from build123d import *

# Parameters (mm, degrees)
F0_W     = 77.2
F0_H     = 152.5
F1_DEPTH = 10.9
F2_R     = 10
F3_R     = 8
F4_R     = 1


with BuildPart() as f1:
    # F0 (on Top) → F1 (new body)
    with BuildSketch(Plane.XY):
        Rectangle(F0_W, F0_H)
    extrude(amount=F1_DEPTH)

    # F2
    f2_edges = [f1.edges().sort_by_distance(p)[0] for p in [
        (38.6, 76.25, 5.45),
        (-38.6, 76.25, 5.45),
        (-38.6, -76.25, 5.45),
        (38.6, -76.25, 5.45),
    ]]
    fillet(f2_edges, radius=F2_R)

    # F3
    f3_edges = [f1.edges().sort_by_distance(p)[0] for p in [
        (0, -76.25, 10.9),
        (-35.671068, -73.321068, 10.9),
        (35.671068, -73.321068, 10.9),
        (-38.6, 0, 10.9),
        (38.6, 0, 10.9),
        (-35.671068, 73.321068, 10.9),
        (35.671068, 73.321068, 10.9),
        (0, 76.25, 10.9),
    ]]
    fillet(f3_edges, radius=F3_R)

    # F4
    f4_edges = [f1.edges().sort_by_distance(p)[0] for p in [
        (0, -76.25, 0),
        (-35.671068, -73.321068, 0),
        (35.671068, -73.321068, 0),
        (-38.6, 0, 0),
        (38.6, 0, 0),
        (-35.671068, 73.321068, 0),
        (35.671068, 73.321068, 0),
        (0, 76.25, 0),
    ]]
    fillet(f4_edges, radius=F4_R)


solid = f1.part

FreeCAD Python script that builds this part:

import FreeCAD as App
import Part
import Sketcher
from FreeCAD import Vector
Q = App.Units.Quantity


def edges_at(feature, points):
    """Names of the edges that pass closest to the given points."""
    edges = feature.Shape.Edges
    near = lambda p: min(range(len(edges)), key=lambda i: edges[i].distToShape(Part.Vertex(*p))[0])
    return sorted({f"Edge{near(p) + 1}" for p in points})


def add_polygon(sketch, points):
    """Adds a closed chain of lines whose ends are joined by coincident constraints."""
    first, n = sketch.GeometryCount, len(points)
    for a, b in zip(points, points[1:] + points[:1]):
        sketch.addGeometry(Part.LineSegment(App.Vector(*a, 0), App.Vector(*b, 0)), False)
    for i in range(n):
        sketch.addConstraint(Sketcher.Constraint("Coincident", first + i, 2, first + (i + 1) % n, 1))

doc = App.newDocument("Part")
body = doc.addObject("PartDesign::Body", "Body")

sketch1 = doc.addObject("Sketcher::SketchObject", "Sketch")
body.addObject(sketch1)
sketch1.AttachmentSupport = (doc.XY_Plane, [""])
sketch1.MapMode = "FlatFace"
add_polygon(sketch1, [(-39, 76), (-39, -76), (39, -76), (39, 76)])
sketch1.addConstraint(Sketcher.Constraint("Vertical", 0))
sketch1.addConstraint(Sketcher.Constraint("Horizontal", 1))
sketch1.addConstraint(Sketcher.Constraint("Vertical", 2))
sketch1.addConstraint(Sketcher.Constraint("Horizontal", 3))
sketch1.addConstraint(Sketcher.Constraint("Symmetric", 0, 2, 2, 2, -1, 1))
sketch1.addConstraint(Sketcher.Constraint("DistanceX", 1, 1, 1, 2, Q("77.2 mm")))
sketch1.addConstraint(Sketcher.Constraint("DistanceY", 0, 2, 0, 1, Q("152.5 mm")))
pad1 = doc.addObject("PartDesign::Pad", "Pad")
body.addObject(pad1)
pad1.Profile = sketch1
pad1.Length = 10.9
doc.recompute()

fillet = doc.addObject("PartDesign::Fillet", "Fillet")
body.addObject(fillet)
fillet.Base = (pad1, edges_at(pad1, [
    (38.6, 76.25, 5.45),
    (-38.6, 76.25, 5.45),
    (-38.6, -76.25, 5.45),
    (38.6, -76.25, 5.45),
]))
fillet.Radius = 10
doc.recompute()

fillet2 = doc.addObject("PartDesign::Fillet", "Fillet001")
body.addObject(fillet2)
fillet2.Base = (fillet, edges_at(fillet, [
    (0, -76.25, 10.9),
    (-35.671, -73.321, 10.9),
    (35.671, -73.321, 10.9),
    (-38.6, 0, 10.9),
    (38.6, 0, 10.9),
    (-35.671, 73.321, 10.9),
    (35.671, 73.321, 10.9),
    (0, 76.25, 10.9),
]))
fillet2.Radius = 8
doc.recompute()

fillet3 = doc.addObject("PartDesign::Fillet", "Fillet002")
body.addObject(fillet3)
fillet3.Base = (fillet2, edges_at(fillet2, [
    (0, -76.25, 0),
    (-35.671, -73.321, 0),
    (35.671, -73.321, 0),
    (-38.6, 0, 0),
    (38.6, 0, 0),
    (-35.671, 73.321, 0),
    (35.671, 73.321, 0),
    (0, 76.25, 0),
]))
fillet3.Radius = 1

doc.recompute()
